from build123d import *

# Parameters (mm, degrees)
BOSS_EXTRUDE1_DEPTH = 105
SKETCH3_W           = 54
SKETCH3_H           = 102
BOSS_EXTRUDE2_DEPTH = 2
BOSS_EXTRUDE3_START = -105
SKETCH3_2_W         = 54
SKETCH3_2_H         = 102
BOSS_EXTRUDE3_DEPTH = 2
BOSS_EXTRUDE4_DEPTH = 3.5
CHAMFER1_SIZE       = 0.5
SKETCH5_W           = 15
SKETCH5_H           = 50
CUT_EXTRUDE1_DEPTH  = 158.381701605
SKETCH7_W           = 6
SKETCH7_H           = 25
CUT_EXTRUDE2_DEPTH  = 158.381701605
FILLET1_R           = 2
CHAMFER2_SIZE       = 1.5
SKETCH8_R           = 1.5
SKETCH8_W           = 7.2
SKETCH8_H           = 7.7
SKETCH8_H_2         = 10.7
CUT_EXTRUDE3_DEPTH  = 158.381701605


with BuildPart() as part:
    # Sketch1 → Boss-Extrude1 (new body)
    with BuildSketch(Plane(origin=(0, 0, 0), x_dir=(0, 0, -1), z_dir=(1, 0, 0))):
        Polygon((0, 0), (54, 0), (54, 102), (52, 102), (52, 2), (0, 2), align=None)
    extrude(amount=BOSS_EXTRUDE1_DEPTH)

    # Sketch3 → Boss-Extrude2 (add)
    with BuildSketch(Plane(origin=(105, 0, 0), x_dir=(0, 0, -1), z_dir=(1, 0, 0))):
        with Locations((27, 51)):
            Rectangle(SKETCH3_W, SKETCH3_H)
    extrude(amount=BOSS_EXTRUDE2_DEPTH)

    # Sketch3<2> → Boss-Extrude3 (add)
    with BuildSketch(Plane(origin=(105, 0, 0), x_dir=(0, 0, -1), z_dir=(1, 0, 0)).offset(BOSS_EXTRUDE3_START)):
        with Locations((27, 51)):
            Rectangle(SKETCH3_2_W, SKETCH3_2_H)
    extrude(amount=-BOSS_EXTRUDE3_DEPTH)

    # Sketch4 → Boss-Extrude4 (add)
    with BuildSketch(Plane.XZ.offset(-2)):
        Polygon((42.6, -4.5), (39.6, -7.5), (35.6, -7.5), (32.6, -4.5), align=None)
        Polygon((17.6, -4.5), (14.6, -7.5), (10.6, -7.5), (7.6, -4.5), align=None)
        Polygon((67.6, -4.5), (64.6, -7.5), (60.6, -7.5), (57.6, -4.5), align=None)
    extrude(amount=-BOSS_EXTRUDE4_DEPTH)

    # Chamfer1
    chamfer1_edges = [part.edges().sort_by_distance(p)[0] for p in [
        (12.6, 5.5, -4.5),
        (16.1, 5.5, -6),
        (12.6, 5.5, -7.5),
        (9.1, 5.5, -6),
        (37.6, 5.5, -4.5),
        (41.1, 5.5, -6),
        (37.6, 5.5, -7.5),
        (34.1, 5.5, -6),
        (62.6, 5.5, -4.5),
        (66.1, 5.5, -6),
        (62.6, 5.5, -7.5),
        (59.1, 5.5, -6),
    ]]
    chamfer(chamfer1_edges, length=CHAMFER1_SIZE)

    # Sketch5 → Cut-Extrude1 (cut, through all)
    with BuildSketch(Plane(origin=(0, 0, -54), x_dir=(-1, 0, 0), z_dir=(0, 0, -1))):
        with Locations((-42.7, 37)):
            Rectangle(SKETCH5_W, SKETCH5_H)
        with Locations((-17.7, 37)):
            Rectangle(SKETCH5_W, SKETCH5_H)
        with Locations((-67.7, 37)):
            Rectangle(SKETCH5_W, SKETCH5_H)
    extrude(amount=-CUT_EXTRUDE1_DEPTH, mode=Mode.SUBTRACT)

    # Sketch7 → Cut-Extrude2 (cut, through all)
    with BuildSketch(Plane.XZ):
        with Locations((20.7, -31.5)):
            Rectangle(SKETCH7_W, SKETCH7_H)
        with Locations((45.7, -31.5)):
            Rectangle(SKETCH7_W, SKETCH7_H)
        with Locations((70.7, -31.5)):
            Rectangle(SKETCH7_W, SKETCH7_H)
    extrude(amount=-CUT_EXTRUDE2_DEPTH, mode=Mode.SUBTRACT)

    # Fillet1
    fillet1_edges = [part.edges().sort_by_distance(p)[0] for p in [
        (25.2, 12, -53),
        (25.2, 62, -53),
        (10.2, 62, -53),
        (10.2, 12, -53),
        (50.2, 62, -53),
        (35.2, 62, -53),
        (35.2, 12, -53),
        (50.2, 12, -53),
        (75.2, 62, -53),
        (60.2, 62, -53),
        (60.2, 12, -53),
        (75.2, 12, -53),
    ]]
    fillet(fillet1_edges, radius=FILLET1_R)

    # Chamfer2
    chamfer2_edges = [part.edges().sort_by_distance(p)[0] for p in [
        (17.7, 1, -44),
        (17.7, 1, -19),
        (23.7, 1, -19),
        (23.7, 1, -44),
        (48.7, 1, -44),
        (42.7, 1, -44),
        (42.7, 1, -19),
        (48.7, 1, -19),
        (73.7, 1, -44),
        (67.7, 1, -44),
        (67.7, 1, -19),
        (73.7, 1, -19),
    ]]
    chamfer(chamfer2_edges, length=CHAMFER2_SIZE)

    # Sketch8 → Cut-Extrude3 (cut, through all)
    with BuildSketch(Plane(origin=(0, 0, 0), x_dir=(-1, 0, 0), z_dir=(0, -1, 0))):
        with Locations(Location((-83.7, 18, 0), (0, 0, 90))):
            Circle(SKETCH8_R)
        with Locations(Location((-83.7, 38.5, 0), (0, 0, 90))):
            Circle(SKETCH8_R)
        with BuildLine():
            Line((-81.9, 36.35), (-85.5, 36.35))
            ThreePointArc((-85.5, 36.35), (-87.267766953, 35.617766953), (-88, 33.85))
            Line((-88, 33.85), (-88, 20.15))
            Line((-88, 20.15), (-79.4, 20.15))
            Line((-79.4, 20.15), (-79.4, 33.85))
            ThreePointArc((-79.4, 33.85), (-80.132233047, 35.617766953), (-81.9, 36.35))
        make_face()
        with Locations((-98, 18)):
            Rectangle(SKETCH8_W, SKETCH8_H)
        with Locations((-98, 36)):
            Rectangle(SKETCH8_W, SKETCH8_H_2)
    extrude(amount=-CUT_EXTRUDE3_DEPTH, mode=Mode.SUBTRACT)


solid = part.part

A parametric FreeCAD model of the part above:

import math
import FreeCAD as App
import Part
import Sketcher

V = App.Vector


def edges_at(feature, points):
    """Names of the edges that pass closest to the given points."""
    edges = feature.Shape.Edges
    near = lambda p: min(range(len(edges)), key=lambda i: edges[i].distToShape(Part.Vertex(*p))[0])
    return sorted({f"Edge{near(p) + 1}" for p in points})

doc = App.newDocument("Part")
params = doc.addObject("Spreadsheet::Sheet", "Params")
for row, (alias, value) in enumerate([
    ("sketch1_width", "102 mm"),
    ("sketch1_width2", "100 mm"),
    ("sketch1_height", "54 mm"),
    ("pad1_length", "105 mm"),
    ("sketch2_width", "102 mm"),
    ("sketch2_height", "54 mm"),
    ("pad2_length", "2 mm"),
    ("sketch3_width", "102 mm"),
    ("sketch3_height", "54 mm"),
    ("pad3_length", "2 mm"),
    ("sketch4_width", "10 mm"),
    ("sketch4_width2", "4 mm"),
    ("pad4_length", "3.5 mm"),
    ("chamfer_size", "0.5 mm"),
    ("sketch5_width", "15 mm"),
    ("sketch5_height", "50 mm"),
    ("sketch6_width", "6 mm"),
    ("sketch6_height", "25 mm"),
    ("fillet_radius", "2 mm"),
    ("chamfer2_size", "1.5 mm"),
    ("sketch7_diameter", "3 mm"),
    ("sketch7_radius", "2.5 mm"),
    ("sketch7_width", "3.6 mm"),
    ("sketch7_width2", "7.2 mm"),
    ("sketch7_height", "13.7 mm"),
], start=1):
    params.set(f"A{row}", alias)
    params.set(f"B{row}", "=" + value)
    params.setAlias(f"B{row}", alias)

body = doc.addObject("PartDesign::Body", "Body")

sketch1 = body.newObject("Sketcher::SketchObject", "Sketch")
sketch1.AttachmentSupport = (doc.getObject("YZ_Plane"), [""])
sketch1.MapMode = "FlatFace"
sketch1.addGeometry([
    Part.LineSegment(V(0, 0, 0), V(0, -54, 0)),
    Part.LineSegment(V(0, -54, 0), V(102, -54, 0)),
    Part.LineSegment(V(102, -54, 0), V(102, -52, 0)),
    Part.LineSegment(V(102, -52, 0), V(2, -52, 0)),
    Part.LineSegment(V(2, -52, 0), V(2, 0, 0)),
    Part.LineSegment(V(2, 0, 0), V(0, 0, 0)),
], False)
sketch1.addConstraint([
    Sketcher.Constraint("Coincident", 0, 2, 1, 1),
    Sketcher.Constraint("Coincident", 1, 2, 2, 1),
    Sketcher.Constraint("Coincident", 2, 2, 3, 1),
    Sketcher.Constraint("Coincident", 3, 2, 4, 1),
    Sketcher.Constraint("Coincident", 4, 2, 5, 1),
    Sketcher.Constraint("Coincident", 5, 2, 0, 1),
    Sketcher.Constraint("Vertical", 0),
    Sketcher.Constraint("Horizontal", 1),
    Sketcher.Constraint("Vertical", 2),
    Sketcher.Constraint("Horizontal", 3),
    Sketcher.Constraint("Vertical", 4),
    Sketcher.Constraint("Horizontal", 5),
    Sketcher.Constraint("Coincident", 5, 2, -1, 1),
    Sketcher.Constraint("Equal", 5, 2),
    Sketcher.Constraint("DistanceX", 1, 1, 1, 2, 102.0),
    Sketcher.Constraint("DistanceX", 3, 2, 3, 1, 100.0),
    Sketcher.Constraint("DistanceY", 0, 2, 0, 1, 54.0),
])
sketch1.setExpression("Constraints[14]", "Params.sketch1_width")
sketch1.setExpression("Constraints[15]", "Params.sketch1_width2")
sketch1.setExpression("Constraints[16]", "Params.sketch1_height")
pad1 = body.newObject("PartDesign::Pad", "Pad")
pad1.Profile = sketch1
pad1.setExpression("Length", "Params.pad1_length")

sketch2 = body.newObject("Sketcher::SketchObject", "Sketch001")
sketch2.AttachmentSupport = (doc.getObject("YZ_Plane"), [""])
sketch2.MapMode = "FlatFace"
sketch2.AttachmentOffset = App.Placement(V(0, 0, 105), App.Rotation())
sketch2.addGeometry([
    Part.LineSegment(V(102, 0, 0), V(0, 0, 0)),
    Part.LineSegment(V(0, 0, 0), V(0, -54, 0)),
    Part.LineSegment(V(0, -54, 0), V(102, -54, 0)),
    Part.LineSegment(V(102, -54, 0), V(102, 0, 0)),
], False)
sketch2.addConstraint([
    Sketcher.Constraint("Coincident", 0, 2, 1, 1),
    Sketcher.Constraint("Coincident", 1, 2, 2, 1),
    Sketcher.Constraint("Coincident", 2, 2, 3, 1),
    Sketcher.Constraint("Coincident", 3, 2, 0, 1),
    Sketcher.Constraint("Horizontal", 0),
    Sketcher.Constraint("Vertical", 1),
    Sketcher.Constraint("Horizontal", 2),
    Sketcher.Constraint("Vertical", 3),
    Sketcher.Constraint("Coincident", 0, 2, -1, 1),
    Sketcher.Constraint("DistanceX", 0, 2, 0, 1, 102.0),
    Sketcher.Constraint("DistanceY", 1, 2, 1, 1, 54.0),
])
sketch2.setExpression("Constraints[9]", "Params.sketch2_width")
sketch2.setExpression("Constraints[10]", "Params.sketch2_height")
pad2 = body.newObject("PartDesign::Pad", "Pad001")
pad2.Profile = sketch2
pad2.setExpression("Length", "Params.pad2_length")

sketch3 = body.newObject("Sketcher::SketchObject", "Sketch002")
sketch3.AttachmentSupport = (doc.getObject("YZ_Plane"), [""])
sketch3.MapMode = "FlatFace"
sketch3.addGeometry([
    Part.LineSegment(V(102, 0, 0), V(0, 0, 0)),
    Part.LineSegment(V(0, 0, 0), V(0, -54, 0)),
    Part.LineSegment(V(0, -54, 0), V(102, -54, 0)),
    Part.LineSegment(V(102, -54, 0), V(102, 0, 0)),
], False)
sketch3.addConstraint([
    Sketcher.Constraint("Coincident", 0, 2, 1, 1),
    Sketcher.Constraint("Coincident", 1, 2, 2, 1),
    Sketcher.Constraint("Coincident", 2, 2, 3, 1),
    Sketcher.Constraint("Coincident", 3, 2, 0, 1),
    Sketcher.Constraint("Horizontal", 0),
    Sketcher.Constraint("Vertical", 1),
    Sketcher.Constraint("Horizontal", 2),
    Sketcher.Constraint("Vertical", 3),
    Sketcher.Constraint("Coincident", 0, 2, -1, 1),
    Sketcher.Constraint("DistanceX", 0, 2, 0, 1, 102.0),
    Sketcher.Constraint("DistanceY", 1, 2, 1, 1, 54.0),
])
sketch3.setExpression("Constraints[9]", "Params.sketch3_width")
sketch3.setExpression("Constraints[10]", "Params.sketch3_height")
pad3 = body.newObject("PartDesign::Pad", "Pad002")
pad3.Profile = sketch3
pad3.setExpression("Length", "Params.pad3_length")
pad3.Reversed = True

sketch4 = body.newObject("Sketcher::SketchObject", "Sketch003")
sketch4.AttachmentSupport = (doc.getObject("XZ_Plane"), [""])
sketch4.MapMode = "FlatFace"
sketch4.AttachmentOffset = App.Placement(V(0, 0, -2), App.Rotation())
sketch4.addGeometry([
    Part.LineSegment(V(39.6, -7.5, 0), V(42.6, -4.5, 0)),
    Part.LineSegment(V(42.6, -4.5, 0), V(32.6, -4.5, 0)),
    Part.LineSegment(V(32.6, -4.5, 0), V(35.6, -7.5, 0)),
    Part.LineSegment(V(35.6, -7.5, 0), V(39.6, -7.5, 0)),
    Part.LineSegment(V(14.6, -7.5, 0), V(17.6, -4.5, 0)),
    Part.LineSegment(V(17.6, -4.5, 0), V(7.6, -4.5, 0)),
    Part.LineSegment(V(7.6, -4.5, 0), V(10.6, -7.5, 0)),
    Part.LineSegment(V(10.6, -7.5, 0), V(14.6, -7.5, 0)),
    Part.LineSegment(V(64.6, -7.5, 0), V(67.6, -4.5, 0)),
    Part.LineSegment(V(67.6, -4.5, 0), V(57.6, -4.5, 0)),
    Part.LineSegment(V(57.6, -4.5, 0), V(60.6, -7.5, 0)),
    Part.LineSegment(V(60.6, -7.5, 0), V(64.6, -7.5, 0)),
], False)
sketch4.addConstraint([
    Sketcher.Constraint("Coincident", 0, 2, 1, 1),
    Sketcher.Constraint("Coincident", 1, 2, 2, 1),
    Sketcher.Constraint("Coincident", 2, 2, 3, 1),
    Sketcher.Constraint("Coincident", 3, 2, 0, 1),
    Sketcher.Constraint("Coincident", 4, 2, 5, 1),
    Sketcher.Constraint("Coincident", 5, 2, 6, 1),
    Sketcher.Constraint("Coincident", 6, 2, 7, 1),
    Sketcher.Constraint("Coincident", 7, 2, 4, 1),
    Sketcher.Constraint("Coincident", 8, 2, 9, 1),
    Sketcher.Constraint("Coincident", 9, 2, 10, 1),
    Sketcher.Constraint("Coincident", 10, 2, 11, 1),
    Sketcher.Constraint("Coincident", 11, 2, 8, 1),
    Sketcher.Constraint("Horizontal", 1),
    Sketcher.Constraint("Horizontal", 3),
    Sketcher.Constraint("Horizontal", 5),
    Sketcher.Constraint("Horizontal", 7),
    Sketcher.Constraint("Horizontal", 9),
    Sketcher.Constraint("Horizontal", 11),
    Sketcher.Constraint("Perpendicular", 0, 2),
    Sketcher.Constraint("Perpendicular", 2, 4),
    Sketcher.Constraint("Perpendicular", 4, 6),
    Sketcher.Constraint("Perpendicular", 6, 8),
    Sketcher.Constraint("Perpendicular", 8, 10),
    Sketcher.Constraint("Horizontal", 1, 2, 4, 2),
    Sketcher.Constraint("Horizontal", 3, 2, 6, 2),
    Sketcher.Constraint("Horizontal", 5, 2, 8, 2),
    Sketcher.Constraint("Horizontal", 7, 2, 10, 2),
    Sketcher.Constraint("Equal", 1, 5),
    Sketcher.Constraint("Equal", 5, 9),
    Sketcher.Constraint("Equal", 0, 2),
    Sketcher.Constraint("DistanceX", 1, 2, 1, 1, 10.0),
    Sketcher.Constraint("DistanceX", 3, 1, 3, 2, 4.0),
    Sketcher.Constraint("DistanceX", 4, 2, 1, 2, 15.0),
    Sketcher.Constraint("DistanceX", 0, 2, 8, 2, 25.0),
    Sketcher.Constraint("DistanceX", -1, 1, 0, 2, 42.6),
    Sketcher.Constraint("DistanceY", 0, 2, -1, 1, 4.5),
])
sketch4.setExpression("Constraints[30]", "Params.sketch4_width")
sketch4.setExpression("Constraints[31]", "Params.sketch4_width2")
pad4 = body.newObject("PartDesign::Pad", "Pad003")
pad4.Profile = sketch4
pad4.setExpression("Length", "Params.pad4_length")
pad4.Reversed = True
doc.recompute()

chamfer = body.newObject("PartDesign::Chamfer", "Chamfer")
chamfer.Base = (pad4, edges_at(pad4, [
    (12.6, 5.5, -4.5),
    (16.1, 5.5, -6),
    (12.6, 5.5, -7.5),
    (9.1, 5.5, -6),
    (37.6, 5.5, -4.5),
    (41.1, 5.5, -6),
    (37.6, 5.5, -7.5),
    (34.1, 5.5, -6),
    (62.6, 5.5, -4.5),
    (66.1, 5.5, -6),
    (62.6, 5.5, -7.5),
    (59.1, 5.5, -6),
]))
chamfer.setExpression("Size", "Params.chamfer_size")

sketch5 = body.newObject("Sketcher::SketchObject", "Sketch004")
sketch5.AttachmentSupport = (doc.getObject("XY_Plane"), [""])
sketch5.MapMode = "FlatFace"
sketch5.AttachmentOffset = App.Placement(V(0, 0, -54), App.Rotation())
sketch5.addGeometry([
    Part.LineSegment(V(50, 62, 0), V(50, 12, 0)),
    Part.LineSegment(V(50, 12, 0), V(35, 12, 0)),
    Part.LineSegment(V(35, 12, 0), V(35, 62, 0)),
    Part.LineSegment(V(35, 62, 0), V(50, 62, 0)),
    Part.LineSegment(V(25, 62, 0), V(25, 12, 0)),
    Part.LineSegment(V(25, 12, 0), V(10, 12, 0)),
    Part.LineSegment(V(10, 12, 0), V(10, 62, 0)),
    Part.LineSegment(V(10, 62, 0), V(25, 62, 0)),
    Part.LineSegment(V(75, 62, 0), V(75, 12, 0)),
    Part.LineSegment(V(75, 12, 0), V(60, 12, 0)),
    Part.LineSegment(V(60, 12, 0), V(60, 62, 0)),
    Part.LineSegment(V(60, 62, 0), V(75, 62, 0)),
], False)
sketch5.addConstraint([
    Sketcher.Constraint("Coincident", 0, 2, 1, 1),
    Sketcher.Constraint("Coincident", 1, 2, 2, 1),
    Sketcher.Constraint("Coincident", 2, 2, 3, 1),
    Sketcher.Constraint("Coincident", 3, 2, 0, 1),
    Sketcher.Constraint("Coincident", 4, 2, 5, 1),
    Sketcher.Constraint("Coincident", 5, 2, 6, 1),
    Sketcher.Constraint("Coincident", 6, 2, 7, 1),
    Sketcher.Constraint("Coincident", 7, 2, 4, 1),
    Sketcher.Constraint("Coincident", 8, 2, 9, 1),
    Sketcher.Constraint("Coincident", 9, 2, 10, 1),
    Sketcher.Constraint("Coincident", 10, 2, 11, 1),
    Sketcher.Constraint("Coincident", 11, 2, 8, 1),
    Sketcher.Constraint("Vertical", 0),
    Sketcher.Constraint("Horizontal", 1),
    Sketcher.Constraint("Vertical", 2),
    Sketcher.Constraint("Horizontal", 3),
    Sketcher.Constraint("Vertical", 4),
    Sketcher.Constraint("Horizontal", 5),
    Sketcher.Constraint("Vertical", 6),
    Sketcher.Constraint("Horizontal", 7),
    Sketcher.Constraint("Vertical", 8),
    Sketcher.Constraint("Horizontal", 9),
    Sketcher.Constraint("Vertical", 10),
    Sketcher.Constraint("Horizontal", 11),
    Sketcher.Constraint("Horizontal", 1, 2, 4, 2),
    Sketcher.Constraint("Horizontal", 3, 2, 6, 2),
    Sketcher.Constraint("Horizontal", 5, 2, 8, 2),
    Sketcher.Constraint("Horizontal", 7, 2, 10, 2),
    Sketcher.Constraint("Equal", 3, 5),
    Sketcher.Constraint("Equal", 7, 9),
    Sketcher.Constraint("DistanceX", 1, 2, 1, 1, 15.0),
    Sketcher.Constraint("DistanceY", 0, 2, 0, 1, 50.0),
    Sketcher.Constraint("DistanceY", -1, 1, 0, 2, 12.0),
    Sketcher.Constraint("DistanceX", 4, 2, 1, 2, 10.0),
    Sketcher.Constraint("DistanceX", 0, 2, 8, 2, 25.0),
    Sketcher.Constraint("DistanceX", -1, 1, 0, 2, 50.2),
])
sketch5.setExpression("Constraints[30]", "Params.sketch5_width")
sketch5.setExpression("Constraints[31]", "Params.sketch5_height")
pocket1 = body.newObject("PartDesign::Pocket", "Pocket")
pocket1.Profile = sketch5
pocket1.Type = "ThroughAll"
pocket1.Reversed = True

sketch6 = body.newObject("Sketcher::SketchObject", "Sketch005")
sketch6.AttachmentSupport = (doc.getObject("XZ_Plane"), [""])
sketch6.MapMode = "FlatFace"
sketch6.addGeometry([
    Part.LineSegment(V(18, -19, 0), V(18, -44, 0)),
    Part.LineSegment(V(18, -44, 0), V(24, -44, 0)),
    Part.LineSegment(V(24, -44, 0), V(24, -19, 0)),
    Part.LineSegment(V(24, -19, 0), V(18, -19, 0)),
    Part.LineSegment(V(43, -19, 0), V(43, -44, 0)),
    Part.LineSegment(V(43, -44, 0), V(49, -44, 0)),
    Part.LineSegment(V(49, -44, 0), V(49, -19, 0)),
    Part.LineSegment(V(49, -19, 0), V(43, -19, 0)),
    Part.LineSegment(V(68, -19, 0), V(68, -44, 0)),
    Part.LineSegment(V(68, -44, 0), V(74, -44, 0)),
    Part.LineSegment(V(74, -44, 0), V(74, -19, 0)),
    Part.LineSegment(V(74, -19, 0), V(68, -19, 0)),
], False)
sketch6.addConstraint([
    Sketcher.Constraint("Coincident", 0, 2, 1, 1),
    Sketcher.Constraint("Coincident", 1, 2, 2, 1),
    Sketcher.Constraint("Coincident", 2, 2, 3, 1),
    Sketcher.Constraint("Coincident", 3, 2, 0, 1),
    Sketcher.Constraint("Coincident", 4, 2, 5, 1),
    Sketcher.Constraint("Coincident", 5, 2, 6, 1),
    Sketcher.Constraint("Coincident", 6, 2, 7, 1),
    Sketcher.Constraint("Coincident", 7, 2, 4, 1),
    Sketcher.Constraint("Coincident", 8, 2, 9, 1),
    Sketcher.Constraint("Coincident", 9, 2, 10, 1),
    Sketcher.Constraint("Coincident", 10, 2, 11, 1),
    Sketcher.Constraint("Coincident", 11, 2, 8, 1),
    Sketcher.Constraint("Vertical", 0),
    Sketcher.Constraint("Horizontal", 1),
    Sketcher.Constraint("Vertical", 2),
    Sketcher.Constraint("Horizontal", 3),
    Sketcher.Constraint("Vertical", 4),
    Sketcher.Constraint("Horizontal", 5),
    Sketcher.Constraint("Vertical", 6),
    Sketcher.Constraint("Horizontal", 7),
    Sketcher.Constraint("Vertical", 8),
    Sketcher.Constraint("Horizontal", 9),
    Sketcher.Constraint("Vertical", 10),
    Sketcher.Constraint("Horizontal", 11),
    Sketcher.Constraint("Horizontal", 1, 2, 4, 2),
    Sketcher.Constraint("Horizontal", 3, 2, 6, 2),
    Sketcher.Constraint("Horizontal", 5, 2, 8, 2),
    Sketcher.Constraint("Horizontal", 7, 2, 10, 2),
    Sketcher.Constraint("Equal", 3, 5),
    Sketcher.Constraint("Equal", 7, 9),
    Sketcher.Constraint("DistanceX", 1, 1, 1, 2, 6.0),
    Sketcher.Constraint("DistanceY", 0, 2, 0, 1, 25.0),
    Sketcher.Constraint("DistanceY", 0, 2, -1, 1, 44.0),
    Sketcher.Constraint("DistanceX", 1, 2, 4, 2, 19.0),
    Sketcher.Constraint("DistanceX", 5, 2, 8, 2, 19.0),
    Sketcher.Constraint("DistanceX", -1, 1, 0, 2, 17.7),
])
sketch6.setExpression("Constraints[30]", "Params.sketch6_width")
sketch6.setExpression("Constraints[31]", "Params.sketch6_height")
pocket2 = body.newObject("PartDesign::Pocket", "Pocket001")
pocket2.Profile = sketch6
pocket2.Type = "ThroughAll"
doc.recompute()

fillet = body.newObject("PartDesign::Fillet", "Fillet")
fillet.Base = (pocket2, edges_at(pocket2, [
    (25.2, 12, -53),
    (25.2, 62, -53),
    (10.2, 62, -53),
    (10.2, 12, -53),
    (50.2, 62, -53),
    (35.2, 62, -53),
    (35.2, 12, -53),
    (50.2, 12, -53),
    (75.2, 62, -53),
    (60.2, 62, -53),
    (60.2, 12, -53),
    (75.2, 12, -53),
]))
fillet.setExpression("Radius", "Params.fillet_radius")
doc.recompute()

chamfer2 = body.newObject("PartDesign::Chamfer", "Chamfer001")
chamfer2.Base = (fillet, edges_at(fillet, [
    (17.7, 1, -44),
    (17.7, 1, -19),
    (23.7, 1, -19),
    (23.7, 1, -44),
    (48.7, 1, -44),
    (42.7, 1, -44),
    (42.7, 1, -19),
    (48.7, 1, -19),
    (73.7, 1, -44),
    (67.7, 1, -44),
    (67.7, 1, -19),
    (73.7, 1, -19),
]))
chamfer2.setExpression("Size", "Params.chamfer2_size")

sketch7 = body.newObject("Sketcher::SketchObject", "Sketch006")
sketch7.AttachmentSupport = (doc.getObject("XZ_Plane"), [""])
sketch7.MapMode = "FlatFace"
sketch7.addGeometry([
    Part.Circle(V(83.7, -18, 0), V(0, 0, 1), 1.5),
    Part.Circle(V(83.7, -38.5, 0), V(0, 0, 1), 1.5),
    Part.LineSegment(V(81.9, -36.4, 0), V(85.5, -36.4, 0)),
    Part.ArcOfCircle(Part.Circle(V(85.5, -33.9, 0), V(0, 0, 1), 2.5), math.radians(-90), math.radians(0)),
    Part.LineSegment(V(88, -33.9, 0), V(88, -20.1, 0)),
    Part.LineSegment(V(88, -20.1, 0), V(79.4, -20.1, 0)),
    Part.LineSegment(V(79.4, -20.1, 0), V(79.4, -33.9, 0)),
    Part.ArcOfCircle(Part.Circle(V(81.9, -33.9, 0), V(0, 0, 1), 2.5), math.radians(180), math.radians(270)),
    Part.LineSegment(V(101.6, -21.9, 0), V(101.6, -14.2, 0)),
    Part.LineSegment(V(101.6, -14.2, 0), V(94.4, -14.2, 0)),
    Part.LineSegment(V(94.4, -14.2, 0), V(94.4, -21.9, 0)),
    Part.LineSegment(V(94.4, -21.9, 0), V(101.6, -21.9, 0)),
    Part.LineSegment(V(101.6, -41.4, 0), V(101.6, -30.6, 0)),
    Part.LineSegment(V(101.6, -30.6, 0), V(94.4, -30.6, 0)),
    Part.LineSegment(V(94.4, -30.6, 0), V(94.4, -41.4, 0)),
    Part.LineSegment(V(94.4, -41.4, 0), V(101.6, -41.4, 0)),
], False)
sketch7.addConstraint([
    Sketcher.Constraint("Tangent", 2, 2, 3, 1),
    Sketcher.Constraint("Tangent", 3, 2, 4, 1),
    Sketcher.Constraint("Coincident", 4, 2, 5, 1),
    Sketcher.Constraint("Coincident", 5, 2, 6, 1),
    Sketcher.Constraint("Tangent", 6, 2, 7, 1),
    Sketcher.Constraint("Tangent", 7, 2, 2, 1),
    Sketcher.Constraint("Coincident", 8, 2, 9, 1),
    Sketcher.Constraint("Coincident", 9, 2, 10, 1),
    Sketcher.Constraint("Coincident", 10, 2, 11, 1),
    Sketcher.Constraint("Coincident", 11, 2, 8, 1),
    Sketcher.Constraint("Coincident", 12, 2, 13, 1),
    Sketcher.Constraint("Coincident", 13, 2, 14, 1),
    Sketcher.Constraint("Coincident", 14, 2, 15, 1),
    Sketcher.Constraint("Coincident", 15, 2, 12, 1),
    Sketcher.Constraint("Horizontal", 2),
    Sketcher.Constraint("Vertical", 4),
    Sketcher.Constraint("Horizontal", 5),
    Sketcher.Constraint("Vertical", 6),
    Sketcher.Constraint("Vertical", 8),
    Sketcher.Constraint("Horizontal", 9),
    Sketcher.Constraint("Vertical", 10),
    Sketcher.Constraint("Horizontal", 11),
    Sketcher.Constraint("Vertical", 12),
    Sketcher.Constraint("Horizontal", 13),
    Sketcher.Constraint("Vertical", 14),
    Sketcher.Constraint("Horizontal", 15),
    Sketcher.Constraint("Equal", 0, 1),
    Sketcher.Constraint("Equal", 3, 7),
    Sketcher.Constraint("Vertical", 0, 3, 1, 3),
    Sketcher.Constraint("Vertical", 11, 2, 12, 2),
    Sketcher.Constraint("Vertical", 10, 2, 13, 2),
    Sketcher.Constraint("Diameter", 0, 3.0),
    Sketcher.Constraint("Radius", 3, 2.5),
    Sketcher.Constraint("DistanceX", 2, 1, 2, 2, 3.6),
    Sketcher.Constraint("DistanceX", 9, 2, 9, 1, 7.2),
    Sketcher.Constraint("DistanceY", 4, 1, 4, 2, 13.7),
    Sketcher.Constraint("DistanceY", 8, 1, 8, 2, 7.7),
    Sketcher.Constraint("DistanceY", 12, 1, 12, 2, 10.7),
    Sketcher.Constraint("DistanceY", 0, 3, -1, 1, 18.0),
    Sketcher.Constraint("DistanceX", -1, 1, 3, 2, 88.0),
    Sketcher.Constraint("DistanceY", 4, 2, 8, 2, 6.0),
    Sketcher.Constraint("DistanceX", 5, 2, 9, 2, 15.0),
    Sketcher.Constraint("DistanceY", 14, 2, 2, 2, 5.0),
    Sketcher.Constraint("DistanceX", -1, 1, 0, 3, 83.7),
    Sketcher.Constraint("DistanceY", 1, 3, -1, 1, 38.5),
    Sketcher.Constraint("DistanceY", 3, 3, -1, 1, 33.85),
])
sketch7.setExpression("Constraints[31]", "Params.sketch7_diameter")
sketch7.setExpression("Constraints[32]", "Params.sketch7_radius")
sketch7.setExpression("Constraints[33]", "Params.sketch7_width")
sketch7.setExpression("Constraints[34]", "Params.sketch7_width2")
sketch7.setExpression("Constraints[35]", "Params.sketch7_height")
pocket3 = body.newObject("PartDesign::Pocket", "Pocket002")
pocket3.Profile = sketch7
pocket3.Type = "ThroughAll"

doc.recompute()
